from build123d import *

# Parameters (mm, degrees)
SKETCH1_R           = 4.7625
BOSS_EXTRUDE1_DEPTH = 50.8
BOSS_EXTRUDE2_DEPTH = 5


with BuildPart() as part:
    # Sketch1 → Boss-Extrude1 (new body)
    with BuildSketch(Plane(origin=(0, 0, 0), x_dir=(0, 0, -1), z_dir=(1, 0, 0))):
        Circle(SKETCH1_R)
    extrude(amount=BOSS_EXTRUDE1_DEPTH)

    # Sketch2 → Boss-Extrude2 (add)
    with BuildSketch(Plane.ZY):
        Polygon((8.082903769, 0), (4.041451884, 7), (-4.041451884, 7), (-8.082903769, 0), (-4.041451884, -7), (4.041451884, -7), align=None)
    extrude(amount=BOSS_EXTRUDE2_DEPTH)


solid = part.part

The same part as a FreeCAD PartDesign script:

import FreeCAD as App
import Part
import Sketcher

V = App.Vector
Q = App.Units.Quantity

doc = App.newDocument("Part")
body = doc.addObject("PartDesign::Body", "Body")

sketch1 = body.newObject("Sketcher::SketchObject", "Sketch")
sketch1.AttachmentSupport = (doc.getObject("YZ_Plane"), [""])
sketch1.MapMode = "FlatFace"
sketch1.addGeometry(Part.Circle(V(0, 0, 0), V(0, 0, 1), 4.8), False)
sketch1.addConstraint([
    Sketcher.Constraint("Coincident", 0, 3, -1, 1),
    Sketcher.Constraint("Diameter", 0, Q("0.375 in")),
])
pad1 = body.newObject("PartDesign::Pad", "Pad")
pad1.Profile = sketch1
pad1.Length = Q("2 in")

sketch2 = body.newObject("Sketcher::SketchObject", "Sketch001")
sketch2.AttachmentSupport = (doc.getObject("YZ_Plane"), [""])
sketch2.MapMode = "FlatFace"
sketch2.addGeometry([
    Part.LineSegment(V(0, 8, 0), V(7, 4, 0)),
    Part.LineSegment(V(7, 4, 0), V(7, -4, 0)),
    Part.LineSegment(V(7, -4, 0), V(0, -8, 0)),
    Part.LineSegment(V(0, -8, 0), V(-7, -4, 0)),
    Part.LineSegment(V(-7, -4, 0), V(-7, 4, 0)),
    Part.LineSegment(V(-7, 4, 0), V(0, 8, 0)),
], False)
sketch2.addConstraint([
    Sketcher.Constraint("Coincident", 0, 2, 1, 1),
    Sketcher.Constraint("Coincident", 1, 2, 2, 1),
    Sketcher.Constraint("Coincident", 2, 2, 3, 1),
    Sketcher.Constraint("Coincident", 3, 2, 4, 1),
    Sketcher.Constraint("Coincident", 4, 2, 5, 1),
    Sketcher.Constraint("Coincident", 5, 2, 0, 1),
    Sketcher.Constraint("Vertical", 1),
    Sketcher.Constraint("Vertical", 4),
    Sketcher.Constraint("Symmetric", 0, 2, 3, 2, -1, 1),
    Sketcher.Constraint("Symmetric", 2, 2, 5, 2, -1, 1),
    Sketcher.Constraint("PointOnObject", 2, 2, -2),
    Sketcher.Constraint("Parallel", 2, 5),
    Sketcher.Constraint("Horizontal", 1, 2, 3, 2),
    Sketcher.Constraint("Angle", 0, Q("-30 deg")),
    Sketcher.Constraint("DistanceX", -1, 1, 0, 2, 7.0),
    Sketcher.Constraint("DistanceY", 1, 2, 1, 1, 8.082904),
])
pad2 = body.newObject("PartDesign::Pad", "Pad001")
pad2.Profile = sketch2
pad2.Length = 5
pad2.Reversed = True

doc.recompute()
